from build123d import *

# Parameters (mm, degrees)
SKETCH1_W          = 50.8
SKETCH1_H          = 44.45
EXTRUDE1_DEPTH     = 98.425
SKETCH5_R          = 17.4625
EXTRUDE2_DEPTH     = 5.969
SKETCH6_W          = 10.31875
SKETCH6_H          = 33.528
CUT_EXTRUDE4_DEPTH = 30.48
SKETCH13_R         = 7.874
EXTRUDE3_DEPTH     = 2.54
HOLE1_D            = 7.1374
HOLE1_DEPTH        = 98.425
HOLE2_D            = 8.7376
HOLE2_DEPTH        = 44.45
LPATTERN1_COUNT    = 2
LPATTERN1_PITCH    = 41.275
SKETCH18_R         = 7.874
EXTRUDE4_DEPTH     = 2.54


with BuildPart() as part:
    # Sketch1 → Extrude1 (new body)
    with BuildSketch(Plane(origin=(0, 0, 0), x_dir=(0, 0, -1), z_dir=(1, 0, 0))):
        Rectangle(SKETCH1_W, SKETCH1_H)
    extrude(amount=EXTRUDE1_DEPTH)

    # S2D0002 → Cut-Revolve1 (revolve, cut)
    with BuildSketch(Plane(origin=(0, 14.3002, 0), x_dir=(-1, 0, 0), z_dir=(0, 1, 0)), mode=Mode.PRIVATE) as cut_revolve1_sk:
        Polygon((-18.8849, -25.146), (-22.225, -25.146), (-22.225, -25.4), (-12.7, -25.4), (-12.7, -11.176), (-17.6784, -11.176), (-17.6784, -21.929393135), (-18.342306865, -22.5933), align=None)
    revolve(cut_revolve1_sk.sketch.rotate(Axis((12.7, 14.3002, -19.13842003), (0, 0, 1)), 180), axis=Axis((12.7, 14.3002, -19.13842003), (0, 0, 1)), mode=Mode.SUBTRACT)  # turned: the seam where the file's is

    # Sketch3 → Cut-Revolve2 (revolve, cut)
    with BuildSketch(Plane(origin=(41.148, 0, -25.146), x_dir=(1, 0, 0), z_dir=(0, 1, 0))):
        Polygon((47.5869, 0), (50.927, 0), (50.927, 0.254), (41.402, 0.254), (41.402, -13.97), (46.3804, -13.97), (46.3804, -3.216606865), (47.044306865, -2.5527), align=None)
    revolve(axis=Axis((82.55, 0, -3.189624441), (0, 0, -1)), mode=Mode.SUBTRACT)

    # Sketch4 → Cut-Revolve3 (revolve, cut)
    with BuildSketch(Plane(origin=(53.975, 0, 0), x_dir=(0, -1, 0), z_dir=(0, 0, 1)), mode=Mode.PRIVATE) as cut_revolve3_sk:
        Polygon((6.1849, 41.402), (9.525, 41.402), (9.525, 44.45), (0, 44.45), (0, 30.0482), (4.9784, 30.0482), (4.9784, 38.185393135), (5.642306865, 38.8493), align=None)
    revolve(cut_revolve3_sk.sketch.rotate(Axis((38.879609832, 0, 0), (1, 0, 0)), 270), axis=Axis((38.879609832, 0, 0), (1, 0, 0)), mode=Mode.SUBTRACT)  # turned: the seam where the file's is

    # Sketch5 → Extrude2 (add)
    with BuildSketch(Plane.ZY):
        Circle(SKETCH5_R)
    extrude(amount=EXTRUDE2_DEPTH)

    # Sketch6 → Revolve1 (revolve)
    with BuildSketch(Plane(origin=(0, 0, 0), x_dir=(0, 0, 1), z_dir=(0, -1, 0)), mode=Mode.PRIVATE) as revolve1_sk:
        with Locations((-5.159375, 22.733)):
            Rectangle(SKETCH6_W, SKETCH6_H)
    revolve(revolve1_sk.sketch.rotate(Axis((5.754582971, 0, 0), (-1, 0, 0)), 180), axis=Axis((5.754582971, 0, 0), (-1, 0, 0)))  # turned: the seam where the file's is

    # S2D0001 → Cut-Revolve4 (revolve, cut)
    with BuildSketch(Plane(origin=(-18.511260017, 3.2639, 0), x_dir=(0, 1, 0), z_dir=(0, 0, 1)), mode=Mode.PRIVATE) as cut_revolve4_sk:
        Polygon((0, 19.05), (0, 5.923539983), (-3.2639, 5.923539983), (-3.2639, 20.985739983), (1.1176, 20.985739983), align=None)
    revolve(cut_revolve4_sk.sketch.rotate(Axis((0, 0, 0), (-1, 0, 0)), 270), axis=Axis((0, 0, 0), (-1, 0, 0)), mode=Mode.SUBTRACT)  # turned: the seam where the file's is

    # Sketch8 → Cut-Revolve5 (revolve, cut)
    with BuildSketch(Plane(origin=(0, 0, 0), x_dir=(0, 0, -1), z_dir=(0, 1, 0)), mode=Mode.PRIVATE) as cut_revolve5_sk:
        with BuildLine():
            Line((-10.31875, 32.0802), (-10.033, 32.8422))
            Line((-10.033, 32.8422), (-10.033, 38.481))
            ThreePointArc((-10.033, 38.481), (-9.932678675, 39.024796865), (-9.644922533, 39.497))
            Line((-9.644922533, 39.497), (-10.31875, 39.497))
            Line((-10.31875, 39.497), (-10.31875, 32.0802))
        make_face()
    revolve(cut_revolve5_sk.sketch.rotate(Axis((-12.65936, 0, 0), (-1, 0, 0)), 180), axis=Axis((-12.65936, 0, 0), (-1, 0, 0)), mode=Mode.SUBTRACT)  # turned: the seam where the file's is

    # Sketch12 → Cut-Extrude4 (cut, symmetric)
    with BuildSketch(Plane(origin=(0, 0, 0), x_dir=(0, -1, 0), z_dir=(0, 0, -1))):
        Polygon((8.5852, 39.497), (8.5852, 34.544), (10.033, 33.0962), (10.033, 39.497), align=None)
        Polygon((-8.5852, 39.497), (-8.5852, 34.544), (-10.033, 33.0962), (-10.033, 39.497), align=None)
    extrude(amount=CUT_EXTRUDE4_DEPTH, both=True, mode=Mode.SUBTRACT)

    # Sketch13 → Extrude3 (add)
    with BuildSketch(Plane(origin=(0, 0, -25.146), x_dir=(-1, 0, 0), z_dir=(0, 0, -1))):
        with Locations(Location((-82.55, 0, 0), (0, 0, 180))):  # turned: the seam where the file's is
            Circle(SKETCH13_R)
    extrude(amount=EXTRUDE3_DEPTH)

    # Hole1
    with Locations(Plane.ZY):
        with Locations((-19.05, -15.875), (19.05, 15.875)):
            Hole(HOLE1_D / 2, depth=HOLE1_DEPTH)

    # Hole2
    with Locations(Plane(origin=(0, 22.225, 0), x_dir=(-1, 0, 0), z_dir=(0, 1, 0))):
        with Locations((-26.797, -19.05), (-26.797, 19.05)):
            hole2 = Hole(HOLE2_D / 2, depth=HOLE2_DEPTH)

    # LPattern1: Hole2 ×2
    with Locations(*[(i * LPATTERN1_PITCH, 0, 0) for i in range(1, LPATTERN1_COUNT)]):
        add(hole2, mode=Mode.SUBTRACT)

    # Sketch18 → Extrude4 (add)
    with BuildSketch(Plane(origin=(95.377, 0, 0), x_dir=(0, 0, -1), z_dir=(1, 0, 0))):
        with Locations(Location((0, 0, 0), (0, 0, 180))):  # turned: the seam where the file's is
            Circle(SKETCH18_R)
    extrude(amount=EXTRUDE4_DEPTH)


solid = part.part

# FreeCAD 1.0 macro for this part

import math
import FreeCAD as App
import Part
import Sketcher

V = App.Vector
Q = App.Units.Quantity


def add_polygon(sketch, points):
    """Adds a closed chain of lines whose ends are joined by coincident constraints."""
    first, n = sketch.GeometryCount, len(points)
    for a, b in zip(points, points[1:] + points[:1]):
        sketch.addGeometry(Part.LineSegment(App.Vector(*a, 0), App.Vector(*b, 0)), False)
    for i in range(n):
        sketch.addConstraint(Sketcher.Constraint("Coincident", first + i, 2, first + (i + 1) % n, 1))

doc = App.newDocument("Part")
body = doc.addObject("PartDesign::Body", "Body")

sketch1 = body.newObject("Sketcher::SketchObject", "Sketch")
sketch1.AttachmentSupport = (doc.getObject("YZ_Plane"), [""])
sketch1.MapMode = "FlatFace"
add_polygon(sketch1, [(22, 25), (-22, 25), (-22, -25), (22, -25)])
sketch1.addConstraint([
    Sketcher.Constraint("Horizontal", 0),
    Sketcher.Constraint("Vertical", 1),
    Sketcher.Constraint("Horizontal", 2),
    Sketcher.Constraint("Vertical", 3),
    Sketcher.Constraint("Symmetric", 0, 2, 2, 2, -1, 1),
    Sketcher.Constraint("DistanceY", 1, 2, 1, 1, Q("2 in")),
    Sketcher.Constraint("DistanceX", 0, 2, 0, 1, Q("1.75 in")),
])
pad1 = body.newObject("PartDesign::Pad", "Pad")
pad1.Profile = sketch1
pad1.Length = Q("3.875 in")

sketch2 = body.newObject("Sketcher::SketchObject", "Sketch001")
sketch2.AttachmentSupport = (doc.getObject("XZ_Plane"), [""])
sketch2.MapMode = "FlatFace"
sketch2.AttachmentOffset = App.Placement(V(0, 0, -0.563 * 25.4), App.Rotation())
add_polygon(sketch2, [(18.88, -25.15), (22.23, -25.15), (22.23, -25.4), (12.7, -25.4), (12.7, -11.18), (17.68, -11.18), (17.68, -21.93), (18.34, -22.59)])
sketch2.addGeometry(Part.LineSegment(V(12.7, -25.4, 0), V(12.7, -11.18, 0)), True)
sketch2.addConstraint([
    Sketcher.Constraint("Horizontal", 0),
    Sketcher.Constraint("Vertical", 1),
    Sketcher.Constraint("Horizontal", 2),
    Sketcher.Constraint("Vertical", 3),
    Sketcher.Constraint("Horizontal", 4),
    Sketcher.Constraint("Vertical", 5),
    Sketcher.Constraint("Vertical", 8),
    Sketcher.Constraint("Coincident", 8, 1, 2, 2),
    Sketcher.Constraint("Horizontal", 4, 2, 8, 2),
    Sketcher.Constraint("DistanceY", 1, 2, -1, 1, Q("1 in")),
    Sketcher.Constraint("Angle", 6, Q("-45 deg")),
    Sketcher.Constraint("Angle", 7, Q("-78 deg")),
    Sketcher.Constraint("DistanceY", 1, 2, 1, 1, Q("0.01 in")),
    Sketcher.Constraint("DistanceY", 3, 1, 3, 2, Q("0.56 in")),
    Sketcher.Constraint("DistanceX", -1, 1, 2, 2, Q("0.5 in")),
    Sketcher.Constraint("DistanceX", 2, 2, 2, 1, Q("0.375 in")),
    Sketcher.Constraint("DistanceX", 4, 1, 4, 2, Q("0.196 in")),
    Sketcher.Constraint("DistanceX", 0, 1, 0, 2, Q("0.1315 in")),
    Sketcher.Constraint("DistanceY", 6, 2, -1, 1, Q("0.8895 in")),
])
groove = body.newObject("PartDesign::Groove", "Groove")
groove.Profile = sketch2
groove.ReferenceAxis = (sketch2, ["Axis0"])
groove.Angle = 360

sketch3 = body.newObject("Sketcher::SketchObject", "Sketch002")
sketch3.AttachmentSupport = (doc.getObject("XZ_Plane"), [""])
sketch3.MapMode = "FlatFace"
add_polygon(sketch3, [(88.73, -25.15), (92.08, -25.15), (92.08, -25.4), (82.55, -25.4), (82.55, -11.18), (87.53, -11.18), (87.53, -21.93), (88.19, -22.59)])
sketch3.addGeometry(Part.LineSegment(V(82.55, -11.18, 0), V(82.55, -25.4, 0)), True)
sketch3.addConstraint([
    Sketcher.Constraint("Horizontal", 0),
    Sketcher.Constraint("Vertical", 1),
    Sketcher.Constraint("Horizontal", 2),
    Sketcher.Constraint("Vertical", 3),
    Sketcher.Constraint("Horizontal", 4),
    Sketcher.Constraint("Vertical", 5),
    Sketcher.Constraint("Vertical", 8),
    Sketcher.Constraint("Coincident", 8, 1, 3, 2),
    Sketcher.Constraint("Horizontal", 1, 2, 8, 2),
    Sketcher.Constraint("DistanceY", 1, 2, -1, 1, Q("1 in")),
    Sketcher.Constraint("Angle", 6, Q("-45 deg")),
    Sketcher.Constraint("Angle", 7, Q("-78 deg")),
    Sketcher.Constraint("DistanceY", 1, 2, 1, 1, Q("0.01 in")),
    Sketcher.Constraint("DistanceY", 3, 1, 3, 2, Q("0.56 in")),
    Sketcher.Constraint("DistanceX", 2, 2, 2, 1, Q("0.375 in")),
    Sketcher.Constraint("DistanceX", 4, 1, 4, 2, Q("0.196 in")),
    Sketcher.Constraint("DistanceX", -1, 1, 2, 2, Q("3.25 in")),
    Sketcher.Constraint("DistanceX", 0, 1, 0, 2, Q("0.1315 in")),
    Sketcher.Constraint("DistanceY", 6, 2, -1, 1, Q("0.8895 in")),
])
groove2 = body.newObject("PartDesign::Groove", "Groove001")
groove2.Profile = sketch3
groove2.ReferenceAxis = (sketch3, ["Axis0"])
groove2.Angle = 360

sketch4 = body.newObject("Sketcher::SketchObject", "Sketch003")
sketch4.AttachmentSupport = (doc.getObject("XY_Plane"), [""])
sketch4.MapMode = "FlatFace"
add_polygon(sketch4, [(95.4, -6.2), (95.4, -9.5), (98.4, -9.5), (98.4, 0), (84, 0), (84, -5), (92.2, -5), (92.8, -5.6)])
sketch4.addConstraint([
    Sketcher.Constraint("Vertical", 0),
    Sketcher.Constraint("Horizontal", 1),
    Sketcher.Constraint("Vertical", 2),
    Sketcher.Constraint("Horizontal", 3),
    Sketcher.Constraint("Vertical", 4),
    Sketcher.Constraint("Horizontal", 5),
    Sketcher.Constraint("PointOnObject", 2, 2, -1),
    Sketcher.Constraint("Angle", 6, Q("-45 deg")),
    Sketcher.Constraint("Angle", 7, Q("-12 deg")),
    Sketcher.Constraint("DistanceX", 1, 1, 1, 2, Q("0.12 in")),
    Sketcher.Constraint("DistanceX", 3, 2, 3, 1, Q("0.567 in")),
    Sketcher.Constraint("DistanceY", 2, 1, 2, 2, Q("0.375 in")),
    Sketcher.Constraint("DistanceY", 4, 2, 4, 1, Q("0.196 in")),
    Sketcher.Constraint("DistanceY", 0, 2, 0, 1, Q("0.1315 in")),
    Sketcher.Constraint("DistanceX", -1, 1, 0, 2, Q("3.755 in")),
    Sketcher.Constraint("DistanceX", -1, 1, 6, 2, Q("3.6545 in")),
])
groove3 = body.newObject("PartDesign::Groove", "Groove002")
groove3.Profile = sketch4
groove3.ReferenceAxis = (sketch4, ["H_Axis"])
groove3.Angle = 360

sketch5 = body.newObject("Sketcher::SketchObject", "Sketch004")
sketch5.AttachmentSupport = (doc.getObject("YZ_Plane"), [""])
sketch5.MapMode = "FlatFace"
sketch5.addGeometry(Part.Circle(V(0, 0, 0), V(0, 0, 1), 17), False)
sketch5.addConstraint([
    Sketcher.Constraint("Coincident", 0, 3, -1, 1),
    Sketcher.Constraint("Diameter", 0, Q("1.375 in")),
])
pad2 = body.newObject("PartDesign::Pad", "Pad001")
pad2.Profile = sketch5
pad2.Length = Q("0.235 in")
pad2.Reversed = True

sketch6 = body.newObject("Sketcher::SketchObject", "Sketch005")
sketch6.AttachmentSupport = (doc.getObject("XZ_Plane"), [""])
sketch6.MapMode = "FlatFace"
add_polygon(sketch6, [(-39, -10), (-6, -10), (-6, 0), (-39, 0)])
sketch6.addConstraint([
    Sketcher.Constraint("Horizontal", 0),
    Sketcher.Constraint("Vertical", 1),
    Sketcher.Constraint("Horizontal", 2),
    Sketcher.Constraint("Vertical", 3),
    Sketcher.Constraint("PointOnObject", 1, 2, -1),
    Sketcher.Constraint("DistanceX", 0, 1, 0, 2, Q("1.32 in")),
    Sketcher.Constraint("DistanceY", 1, 1, 1, 2, Q("0.40625 in")),
    Sketcher.Constraint("DistanceX", 0, 2, -1, 1, Q("0.235 in")),
])
revolution = body.newObject("PartDesign::Revolution", "Revolution")
revolution.Profile = sketch6
revolution.ReferenceAxis = (sketch6, ["H_Axis"])
revolution.Angle = 360

sketch7 = body.newObject("Sketcher::SketchObject", "Sketch006")
sketch7.AttachmentSupport = (doc.getObject("XY_Plane"), [""])
sketch7.MapMode = "FlatFace"
add_polygon(sketch7, [(-24.4, 3.3), (-37.6, 3.3), (-39.5, 4.4), (-39.5, 0), (-24.4, 0)])
sketch7.addConstraint([
    Sketcher.Constraint("Horizontal", 0),
    Sketcher.Constraint("Vertical", 2),
    Sketcher.Constraint("Horizontal", 3),
    Sketcher.Constraint("Vertical", 4),
    Sketcher.Constraint("PointOnObject", 2, 2, -1),
    Sketcher.Constraint("Angle", 1, Q("150 deg")),
    Sketcher.Constraint("DistanceX", 3, 1, 3, 2, Q("0.593 in")),
    Sketcher.Constraint("Distance", 1, Q("0.088 in")),
    Sketcher.Constraint("DistanceY", 2, 2, 2, 1, Q("0.1725 in")),
    Sketcher.Constraint("DistanceX", 1, 2, -1, 1, Q("1.555 in")),
])
groove4 = body.newObject("PartDesign::Groove", "Groove003")
groove4.Profile = sketch7
groove4.ReferenceAxis = (sketch7, ["H_Axis"])
groove4.Angle = 360

sketch8 = body.newObject("Sketcher::SketchObject", "Sketch007")
sketch8.AttachmentSupport = (doc.getObject("XZ_Plane"), [""])
sketch8.MapMode = "FlatFace"
sketch8.addGeometry([
    Part.LineSegment(V(-32.1, 10.3, 0), V(-32.8, 10, 0)),
    Part.LineSegment(V(-32.8, 10, 0), V(-38.5, 10, 0)),
    Part.ArcOfCircle(Part.Circle(V(-38.5, 8.5, 0), V(0, 0, 1), 1.5), math.radians(90), math.radians(132)),
    Part.LineSegment(V(-39.5, 9.6, 0), V(-39.5, 10.3, 0)),
    Part.LineSegment(V(-39.5, 10.3, 0), V(-32.1, 10.3, 0)),
], False)
sketch8.addConstraint([
    Sketcher.Constraint("Coincident", 0, 2, 1, 1),
    Sketcher.Constraint("Tangent", 1, 2, 2, 1),
    Sketcher.Constraint("Coincident", 2, 2, 3, 1),
    Sketcher.Constraint("Coincident", 3, 2, 4, 1),
    Sketcher.Constraint("Coincident", 4, 2, 0, 1),
    Sketcher.Constraint("Horizontal", 1),
    Sketcher.Constraint("Vertical", 3),
    Sketcher.Constraint("Horizontal", 4),
    Sketcher.Constraint("Radius", 2, Q("0.06 in")),
    Sketcher.Constraint("DistanceX", 1, 2, 1, 1, Q("0.222 in")),
    Sketcher.Constraint("DistanceX", 4, 1, 4, 2, Q("0.292 in")),
    Sketcher.Constraint("DistanceX", 2, 2, 1, 2, Q("0.04 in")),
    Sketcher.Constraint("DistanceX", 2, 3, -1, 1, Q("1.515 in")),
    Sketcher.Constraint("DistanceY", -1, 1, 2, 3, Q("0.335 in")),
    Sketcher.Constraint("DistanceY", -1, 1, 3, 2, Q("0.40625 in")),
])
groove5 = body.newObject("PartDesign::Groove", "Groove004")
groove5.Profile = sketch8
groove5.ReferenceAxis = (sketch8, ["H_Axis"])
groove5.Angle = 360

sketch9 = body.newObject("Sketcher::SketchObject", "Sketch008")
sketch9.AttachmentSupport = (doc.getObject("XY_Plane"), [""])
sketch9.MapMode = "FlatFace"
add_polygon(sketch9, [(-39.5, -8.6), (-34.5, -8.6), (-33.1, -10), (-39.5, -10)])
add_polygon(sketch9, [(-34.5, 8.6), (-39.5, 8.6), (-39.5, 10), (-33.1, 10)])
sketch9.addConstraint([
    Sketcher.Constraint("Horizontal", 0),
    Sketcher.Constraint("Horizontal", 2),
    Sketcher.Constraint("Vertical", 3),
    Sketcher.Constraint("Horizontal", 4),
    Sketcher.Constraint("Vertical", 5),
    Sketcher.Constraint("Horizontal", 6),
    Sketcher.Constraint("Symmetric", 3, 2, 4, 2, -1),
    Sketcher.Constraint("Symmetric", 1, 2, 6, 2, -1),
    Sketcher.Constraint("Perpendicular", 1, 7),
    Sketcher.Constraint("Vertical", 0, 2, 7, 2),
    Sketcher.Constraint("DistanceX", 0, 1, 0, 2, Q("0.195 in")),
    Sketcher.Constraint("DistanceX", 2, 2, 2, 1, Q("0.252 in")),
    Sketcher.Constraint("DistanceX", 0, 2, -1, 1, Q("1.36 in")),
    Sketcher.Constraint("DistanceY", 2, 2, 5, 2, Q("0.79 in")),
])
pocket1 = body.newObject("PartDesign::Pocket", "Pocket")
pocket1.Profile = sketch9
pocket1.Length = Q("2.4 in")
pocket1.Midplane = True

sketch10 = body.newObject("Sketcher::SketchObject", "Sketch009")
sketch10.AttachmentSupport = (doc.getObject("XY_Plane"), [""])
sketch10.MapMode = "FlatFace"
sketch10.AttachmentOffset = App.Placement(V(0, 0, -0.99 * 25.4), App.Rotation())
sketch10.addGeometry(Part.Circle(V(83, 0, 0), V(0, 0, 1), 8), False)
sketch10.addConstraint([
    Sketcher.Constraint("PointOnObject", 0, 3, -1),
    Sketcher.Constraint("Diameter", 0, Q("0.62 in")),
    Sketcher.Constraint("DistanceX", -1, 1, 0, 3, Q("3.25 in")),
])
pad3 = body.newObject("PartDesign::Pad", "Pad002")
pad3.Profile = sketch10
pad3.Length = Q("0.1 in")
pad3.Reversed = True

sketch11 = body.newObject("Sketcher::SketchObject", "Sketch010")
sketch11.AttachmentSupport = (doc.getObject("YZ_Plane"), [""])
sketch11.MapMode = "FlatFace"
sketch11.addGeometry([
    Part.Circle(V(-15.9, -19.1, 0), V(0, 0, 1), 3.6),
    Part.Circle(V(15.9, 19.1, 0), V(0, 0, 1), 3.6),
], False)
sketch11.addConstraint([
    Sketcher.Constraint("Equal", 0, 1),
    Sketcher.Constraint("Symmetric", 0, 3, 1, 3, -1, 1),
    Sketcher.Constraint("Diameter", 0, Q("0.281 in")),
    Sketcher.Constraint("DistanceY", 0, 3, 1, 3, Q("1.5 in")),
    Sketcher.Constraint("DistanceX", 0, 3, 1, 3, Q("1.25 in")),
])
doc.recompute()
hole = body.newObject("PartDesign::Hole", "Hole")
hole.Profile = sketch11
hole.ThreadType = "None"
hole.Diameter = Q("0.281 in")
hole.DepthType = "Dimension"
hole.Depth = Q("3.875 in")
hole.DrillPoint = "Flat"
hole.Reversed = True

sketch12 = body.newObject("Sketcher::SketchObject", "Sketch011")
sketch12.AttachmentSupport = (doc.getObject("XZ_Plane"), [""])
sketch12.MapMode = "FlatFace"
sketch12.AttachmentOffset = App.Placement(V(0, 0, -0.875 * 25.4), App.Rotation())
sketch12.addGeometry([
    Part.Circle(V(26.8, -19.1, 0), V(0, 0, 1), 4.4),
    Part.Circle(V(26.8, 19.1, 0), V(0, 0, 1), 4.4),
], False)
sketch12.addConstraint([
    Sketcher.Constraint("Equal", 0, 1),
    Sketcher.Constraint("Symmetric", 0, 3, 1, 3, -1),
    Sketcher.Constraint("Diameter", 0, Q("0.344 in")),
    Sketcher.Constraint("DistanceY", 0, 3, 1, 3, Q("1.5 in")),
    Sketcher.Constraint("DistanceX", -1, 1, 0, 3, Q("1.055 in")),
])
doc.recompute()
hole2 = body.newObject("PartDesign::Hole", "Hole001")
hole2.Profile = sketch12
hole2.ThreadType = "None"
hole2.Diameter = Q("0.344 in")
hole2.DepthType = "Dimension"
hole2.Depth = Q("1.75 in")
hole2.DrillPoint = "Flat"
hole2.Reversed = True
doc.recompute()

linearpattern = body.newObject("PartDesign::LinearPattern", "LinearPattern")
linearpattern.Originals = [hole2]
linearpattern.Direction = (doc.getObject("X_Axis"), [""])
linearpattern.Mode = "offset"
linearpattern.Offset = Q("1.625 in")
linearpattern.Occurrences = 2
body.Tip = linearpattern

sketch13 = body.newObject("Sketcher::SketchObject", "Sketch012")
sketch13.AttachmentSupport = (doc.getObject("YZ_Plane"), [""])
sketch13.MapMode = "FlatFace"
sketch13.AttachmentOffset = App.Placement(V(0, 0, 3.755 * 25.4), App.Rotation())
sketch13.addGeometry(Part.Circle(V(0, 0, 0), V(0, 0, 1), 8), False)
sketch13.addConstraint([
    Sketcher.Constraint("Coincident", 0, 3, -1, 1),
    Sketcher.Constraint("Diameter", 0, Q("0.62 in")),
])
pad4 = body.newObject("PartDesign::Pad", "Pad003")
pad4.Profile = sketch13
pad4.Length = Q("0.1 in")

doc.recompute()
